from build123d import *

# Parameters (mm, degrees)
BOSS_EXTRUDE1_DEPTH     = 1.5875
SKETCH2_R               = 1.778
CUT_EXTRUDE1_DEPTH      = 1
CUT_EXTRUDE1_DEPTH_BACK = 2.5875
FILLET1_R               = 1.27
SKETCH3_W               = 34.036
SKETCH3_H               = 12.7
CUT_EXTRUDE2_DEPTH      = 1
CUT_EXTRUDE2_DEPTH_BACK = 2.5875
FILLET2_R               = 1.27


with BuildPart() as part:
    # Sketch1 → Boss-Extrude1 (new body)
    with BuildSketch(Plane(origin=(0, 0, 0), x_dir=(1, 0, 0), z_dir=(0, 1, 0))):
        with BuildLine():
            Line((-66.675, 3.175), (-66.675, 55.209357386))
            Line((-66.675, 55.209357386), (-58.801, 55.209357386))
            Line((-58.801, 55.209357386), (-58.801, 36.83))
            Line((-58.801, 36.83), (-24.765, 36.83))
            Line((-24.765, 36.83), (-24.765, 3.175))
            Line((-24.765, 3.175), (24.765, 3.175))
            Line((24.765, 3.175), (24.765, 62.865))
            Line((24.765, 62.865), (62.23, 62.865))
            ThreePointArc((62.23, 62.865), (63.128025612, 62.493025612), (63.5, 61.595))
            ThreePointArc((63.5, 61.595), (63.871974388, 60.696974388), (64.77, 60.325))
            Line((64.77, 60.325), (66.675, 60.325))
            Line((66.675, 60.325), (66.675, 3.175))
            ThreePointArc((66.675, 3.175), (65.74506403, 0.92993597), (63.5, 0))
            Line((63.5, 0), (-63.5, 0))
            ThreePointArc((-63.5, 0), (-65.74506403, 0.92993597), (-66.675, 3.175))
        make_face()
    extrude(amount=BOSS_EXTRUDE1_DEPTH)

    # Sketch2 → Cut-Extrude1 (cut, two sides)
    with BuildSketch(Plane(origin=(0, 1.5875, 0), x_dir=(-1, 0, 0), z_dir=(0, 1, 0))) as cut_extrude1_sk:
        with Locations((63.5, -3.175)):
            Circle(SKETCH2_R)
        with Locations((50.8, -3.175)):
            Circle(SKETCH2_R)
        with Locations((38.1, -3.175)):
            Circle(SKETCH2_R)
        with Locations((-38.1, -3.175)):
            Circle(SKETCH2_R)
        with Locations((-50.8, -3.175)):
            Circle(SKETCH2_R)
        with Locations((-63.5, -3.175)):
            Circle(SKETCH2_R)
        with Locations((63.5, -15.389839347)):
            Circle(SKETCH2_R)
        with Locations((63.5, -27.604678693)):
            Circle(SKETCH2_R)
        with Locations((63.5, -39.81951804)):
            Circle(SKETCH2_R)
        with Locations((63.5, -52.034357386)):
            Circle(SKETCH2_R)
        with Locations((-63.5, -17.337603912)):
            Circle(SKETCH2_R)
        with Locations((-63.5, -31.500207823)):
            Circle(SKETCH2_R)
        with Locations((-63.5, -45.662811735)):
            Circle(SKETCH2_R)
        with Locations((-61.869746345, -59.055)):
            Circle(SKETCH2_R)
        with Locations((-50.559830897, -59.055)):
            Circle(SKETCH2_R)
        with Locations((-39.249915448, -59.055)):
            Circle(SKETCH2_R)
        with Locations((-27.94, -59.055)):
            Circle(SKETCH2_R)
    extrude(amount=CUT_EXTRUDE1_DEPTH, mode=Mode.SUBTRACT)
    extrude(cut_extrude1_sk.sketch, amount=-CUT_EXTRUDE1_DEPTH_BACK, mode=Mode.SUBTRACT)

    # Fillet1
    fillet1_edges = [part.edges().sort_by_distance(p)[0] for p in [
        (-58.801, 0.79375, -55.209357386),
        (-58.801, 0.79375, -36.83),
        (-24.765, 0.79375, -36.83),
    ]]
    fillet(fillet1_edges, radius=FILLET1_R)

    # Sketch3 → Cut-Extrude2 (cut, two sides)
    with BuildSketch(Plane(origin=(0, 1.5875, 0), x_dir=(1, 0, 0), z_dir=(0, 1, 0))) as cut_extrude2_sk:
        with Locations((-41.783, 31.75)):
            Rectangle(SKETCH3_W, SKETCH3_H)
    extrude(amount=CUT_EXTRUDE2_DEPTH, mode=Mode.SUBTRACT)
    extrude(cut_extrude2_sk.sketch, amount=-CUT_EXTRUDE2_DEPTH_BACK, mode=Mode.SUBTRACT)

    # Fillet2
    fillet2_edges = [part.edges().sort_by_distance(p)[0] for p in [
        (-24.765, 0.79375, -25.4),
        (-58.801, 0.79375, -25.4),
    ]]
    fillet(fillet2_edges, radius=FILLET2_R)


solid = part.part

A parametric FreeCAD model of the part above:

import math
import FreeCAD as App
import Part
import Sketcher

V = App.Vector
Q = App.Units.Quantity


def edges_at(feature, points):
    """Names of the edges that pass closest to the given points."""
    edges = feature.Shape.Edges
    near = lambda p: min(range(len(edges)), key=lambda i: edges[i].distToShape(Part.Vertex(*p))[0])
    return sorted({f"Edge{near(p) + 1}" for p in points})


def add_polygon(sketch, points):
    """Adds a closed chain of lines whose ends are joined by coincident constraints."""
    first, n = sketch.GeometryCount, len(points)
    for a, b in zip(points, points[1:] + points[:1]):
        sketch.addGeometry(Part.LineSegment(App.Vector(*a, 0), App.Vector(*b, 0)), False)
    for i in range(n):
        sketch.addConstraint(Sketcher.Constraint("Coincident", first + i, 2, first + (i + 1) % n, 1))

doc = App.newDocument("Part")
body = doc.addObject("PartDesign::Body", "Body")

# Sketch on XZ plane
sketch1 = doc.addObject("Sketcher::SketchObject", "Sketch")
body.addObject(sketch1)
sketch1.AttachmentSupport = (doc.XZ_Plane, [""])
sketch1.MapMode = "FlatFace"
sketch1.addGeometry([
    Part.LineSegment(V(-66.7, -55.2, 0), V(-66.7, -3.2, 0)),  # 0
    Part.ArcOfCircle(Part.Circle(V(-63.5, -3.2, 0), V(0, 0, 1), 3.2), math.radians(90), math.radians(180)),  # 1
    Part.LineSegment(V(-63.5, 0, 0), V(63.5, 0, 0)),  # 2
    Part.ArcOfCircle(Part.Circle(V(63.5, -3.2, 0), V(0, 0, 1), 3.2), math.radians(0), math.radians(90)),  # 3
    Part.LineSegment(V(66.7, -3.2, 0), V(66.7, -60.3, 0)),  # 4
    Part.LineSegment(V(66.7, -60.3, 0), V(64.8, -60.3, 0)),  # 5
    Part.ArcOfCircle(Part.Circle(V(64.8, -61.6, 0), V(0, 0, 1), 1.3), math.radians(90), math.radians(180)),  # 6
    Part.ArcOfCircle(Part.Circle(V(62.2, -61.6, 0), V(0, 0, 1), 1.3), math.radians(-90), math.radians(0)),  # 7
    Part.LineSegment(V(62.2, -62.9, 0), V(24.8, -62.9, 0)),  # 8
    Part.LineSegment(V(24.8, -62.9, 0), V(24.8, -3.2, 0)),  # 9
    Part.LineSegment(V(24.8, -3.2, 0), V(-24.8, -3.2, 0)),  # 10
    Part.LineSegment(V(-24.8, -3.2, 0), V(-24.8, -36.8, 0)),  # 11
    Part.LineSegment(V(-24.8, -36.8, 0), V(-58.8, -36.8, 0)),  # 12
    Part.LineSegment(V(-58.8, -36.8, 0), V(-58.8, -55.2, 0)),  # 13
    Part.LineSegment(V(-58.8, -55.2, 0), V(-66.7, -55.2, 0)),  # 14
], False)
sketch1.addConstraint([
    Sketcher.Constraint("Tangent", 0, 2, 1, 2),
    Sketcher.Constraint("Tangent", 1, 1, 2, 1),
    Sketcher.Constraint("Tangent", 2, 2, 3, 2),
    Sketcher.Constraint("Tangent", 3, 1, 4, 1),
    Sketcher.Constraint("Coincident", 4, 2, 5, 1),
    Sketcher.Constraint("Tangent", 5, 2, 6, 1),
    Sketcher.Constraint("Tangent", 6, 2, 7, 2),
    Sketcher.Constraint("Tangent", 7, 1, 8, 1),
    Sketcher.Constraint("Coincident", 8, 2, 9, 1),
    Sketcher.Constraint("Coincident", 9, 2, 10, 1),
    Sketcher.Constraint("Coincident", 10, 2, 11, 1),
    Sketcher.Constraint("Coincident", 11, 2, 12, 1),
    Sketcher.Constraint("Coincident", 12, 2, 13, 1),
    Sketcher.Constraint("Coincident", 13, 2, 14, 1),
    Sketcher.Constraint("Coincident", 14, 2, 0, 1),
    Sketcher.Constraint("Vertical", 0),
    Sketcher.Constraint("Horizontal", 2),
    Sketcher.Constraint("Vertical", 4),
    Sketcher.Constraint("Horizontal", 5),
    Sketcher.Constraint("Horizontal", 8),
    Sketcher.Constraint("Vertical", 9),
    Sketcher.Constraint("Horizontal", 10),
    Sketcher.Constraint("Vertical", 11),
    Sketcher.Constraint("Horizontal", 12),
    Sketcher.Constraint("Vertical", 13),
    Sketcher.Constraint("Horizontal", 14),
    Sketcher.Constraint("Equal", 1, 3),
    Sketcher.Constraint("Equal", 6, 7),
    Sketcher.Constraint("Symmetric", 1, 1, 2, 2, -1, 1),
    Sketcher.Constraint("Horizontal", 6, 3, 7, 3),
    Sketcher.Constraint("Horizontal", 3, 1, 9, 2),
    Sketcher.Constraint("Vertical", 2, 2, 6, 2),
    Sketcher.Constraint("DistanceX", 2, 1, 2, 2, Q("5 in")),
    Sketcher.Constraint("Radius", 6, Q("0.05 in")),
    Sketcher.Constraint("Radius", 1, Q("0.125 in")),
    Sketcher.Constraint("DistanceX", 10, 2, 10, 1, Q("1.95 in")),
    Sketcher.Constraint("DistanceX", 12, 2, 12, 1, Q("1.34 in")),
    Sketcher.Constraint("DistanceX", 14, 2, 14, 1, Q("0.31 in")),
    Sketcher.Constraint("DistanceY", 4, 2, 4, 1, Q("2.25 in")),
    Sketcher.Constraint("DistanceY", 11, 2, 11, 1, Q("1.325 in")),
    Sketcher.Constraint("DistanceY", 0, 1, 0, 2, Q("52.034357 mm")),
])
pad1 = doc.addObject("PartDesign::Pad", "Pad")
body.addObject(pad1)
pad1.Profile = sketch1
pad1.Length = Q("0.0625 in")
pad1.Reversed = True

# Sketch on XZ plane
sketch2 = doc.addObject("Sketcher::SketchObject", "Sketch001")
body.addObject(sketch2)
sketch2.AttachmentSupport = (doc.XZ_Plane, [""])
sketch2.MapMode = "FlatFace"
sketch2.AttachmentOffset = App.Placement(V(0, 0, -0.0625 * 25.4), App.Rotation())
sketch2.addGeometry([
    Part.Circle(V(-63.5, -3.2, 0), V(0, 0, 1), 1.8),  # 0
    Part.Circle(V(-50.8, -3.2, 0), V(0, 0, 1), 1.8),  # 1
    Part.Circle(V(-38.1, -3.2, 0), V(0, 0, 1), 1.8),  # 2
    Part.Circle(V(38.1, -3.2, 0), V(0, 0, 1), 1.8),  # 3
    Part.Circle(V(50.8, -3.2, 0), V(0, 0, 1), 1.8),  # 4
    Part.Circle(V(63.5, -3.2, 0), V(0, 0, 1), 1.8),  # 5
    Part.Circle(V(-63.5, -15.4, 0), V(0, 0, 1), 1.8),  # 6
    Part.Circle(V(-63.5, -27.6, 0), V(0, 0, 1), 1.8),  # 7
    Part.Circle(V(-63.5, -39.8, 0), V(0, 0, 1), 1.8),  # 8
    Part.Circle(V(-63.5, -52, 0), V(0, 0, 1), 1.8),  # 9
    Part.Circle(V(63.5, -17.3, 0), V(0, 0, 1), 1.8),  # 10
    Part.Circle(V(63.5, -31.5, 0), V(0, 0, 1), 1.8),  # 11
    Part.Circle(V(63.5, -45.7, 0), V(0, 0, 1), 1.8),  # 12
    Part.Circle(V(61.9, -59.1, 0), V(0, 0, 1), 1.8),  # 13
    Part.Circle(V(50.6, -59.1, 0), V(0, 0, 1), 1.8),  # 14
    Part.Circle(V(39.2, -59.1, 0), V(0, 0, 1), 1.8),  # 15
    Part.Circle(V(27.9, -59.1, 0), V(0, 0, 1), 1.8),  # 16
], False)
sketch2.addConstraint([
    Sketcher.Constraint("Equal", 0, 1),
    Sketcher.Constraint("Equal", 1, 2),
    Sketcher.Constraint("Equal", 2, 3),
    Sketcher.Constraint("Equal", 3, 4),
    Sketcher.Constraint("Equal", 4, 5),
    Sketcher.Constraint("Equal", 5, 6),
    Sketcher.Constraint("Equal", 6, 7),
    Sketcher.Constraint("Equal", 7, 8),
    Sketcher.Constraint("Equal", 8, 9),
    Sketcher.Constraint("Equal", 9, 10),
    Sketcher.Constraint("Equal", 10, 11),
    Sketcher.Constraint("Equal", 11, 12),
    Sketcher.Constraint("Equal", 12, 13),
    Sketcher.Constraint("Equal", 13, 14),
    Sketcher.Constraint("Equal", 14, 15),
    Sketcher.Constraint("Equal", 15, 16),
    Sketcher.Constraint("Symmetric", 2, 3, 3, 3, -2),
    Sketcher.Constraint("Symmetric", 1, 3, 4, 3, -2),
    Sketcher.Constraint("Symmetric", 0, 3, 5, 3, -2),
    Sketcher.Constraint("Horizontal", 0, 3, 1, 3),
    Sketcher.Constraint("Horizontal", 1, 3, 2, 3),
    Sketcher.Constraint("Horizontal", 13, 3, 14, 3),
    Sketcher.Constraint("Horizontal", 14, 3, 15, 3),
    Sketcher.Constraint("Horizontal", 15, 3, 16, 3),
    Sketcher.Constraint("Vertical", 0, 3, 6, 3),
    Sketcher.Constraint("Vertical", 6, 3, 7, 3),
    Sketcher.Constraint("Vertical", 7, 3, 8, 3),
    Sketcher.Constraint("Vertical", 8, 3, 9, 3),
    Sketcher.Constraint("Vertical", 5, 3, 10, 3),
    Sketcher.Constraint("Vertical", 10, 3, 11, 3),
    Sketcher.Constraint("Vertical", 11, 3, 12, 3),
    Sketcher.Constraint("Diameter", 0, Q("0.14 in")),
    Sketcher.Constraint("DistanceX", 1, 3, -1, 1, Q("2 in")),
    Sketcher.Constraint("DistanceX", 0, 3, 2, 3, Q("1 in")),
    Sketcher.Constraint("DistanceX", 2, 3, 3, 3, Q("3 in")),
    Sketcher.Constraint("DistanceX", -1, 1, 16, 3, Q("1.1 in")),
    Sketcher.Constraint("DistanceY", 13, 3, 5, 3, Q("2.2 in")),
    Sketcher.Constraint("DistanceY", 0, 3, -1, 1, Q("0.125 in")),
    Sketcher.Constraint("DistanceY", 6, 3, -1, 1, Q("15.389839 mm")),
    Sketcher.Constraint("DistanceY", 7, 3, -1, 1, Q("27.604679 mm")),
    Sketcher.Constraint("DistanceY", 8, 3, -1, 1, Q("39.819518 mm")),
    Sketcher.Constraint("DistanceY", 12, 3, -1, 1, Q("45.662812 mm")),
    Sketcher.Constraint("DistanceX", -1, 1, 14, 3, Q("50.559831 mm")),
    Sketcher.Constraint("DistanceY", 9, 3, 8, 3, Q("12.214839 mm")),
    Sketcher.Constraint("DistanceX", 15, 3, 13, 3, Q("22.619831 mm")),
    Sketcher.Constraint("DistanceY", 10, 3, -1, 1, Q("17.337604 mm")),
    Sketcher.Constraint("DistanceY", 11, 3, -1, 1, Q("31.500208 mm")),
    Sketcher.Constraint("DistanceX", -1, 1, 13, 3, Q("61.869746 mm")),
])
pocket1 = doc.addObject("PartDesign::Pocket", "Pocket")
body.addObject(pocket1)
pocket1.Profile = sketch2
pocket1.Type = "ThroughAll"
pocket1.Midplane = True
doc.recompute()

fillet = doc.addObject("PartDesign::Fillet", "Fillet")
body.addObject(fillet)
fillet.Base = (pocket1, edges_at(pocket1, [(-58.801, 0.794, -55.209), (-58.801, 0.794, -36.83), (-24.765, 0.794, -36.83)]))
fillet.Radius = Q("0.05 in")

# Sketch on XZ plane
sketch3 = doc.addObject("Sketcher::SketchObject", "Sketch002")
body.addObject(sketch3)
sketch3.AttachmentSupport = (doc.XZ_Plane, [""])
sketch3.MapMode = "FlatFace"
sketch3.AttachmentOffset = App.Placement(V(0, 0, -0.0625 * 25.4), App.Rotation())
add_polygon(sketch3, [(-59, -38), (-59, -25), (-25, -25), (-25, -38)])  # lines 0-3
sketch3.addConstraint([
    Sketcher.Constraint("Vertical", 0),
    Sketcher.Constraint("Horizontal", 1),
    Sketcher.Constraint("Vertical", 2),
    Sketcher.Constraint("Horizontal", 3),
    Sketcher.Constraint("DistanceY", 0, 1, 0, 2, Q("0.5 in")),
    Sketcher.Constraint("DistanceY", 0, 2, -1, 1, Q("1 in")),
    Sketcher.Constraint("DistanceX", 1, 1, 1, 2, Q("1.34 in")),
    Sketcher.Constraint("DistanceX", 0, 2, -1, 1, Q("2.315 in")),
])
pocket2 = doc.addObject("PartDesign::Pocket", "Pocket001")
body.addObject(pocket2)
pocket2.Profile = sketch3
pocket2.Type = "ThroughAll"
pocket2.Midplane = True
doc.recompute()

fillet2 = doc.addObject("PartDesign::Fillet", "Fillet001")
body.addObject(fillet2)
fillet2.Base = (pocket2, edges_at(pocket2, [(-24.765, 0.794, -25.4), (-58.801, 0.794, -25.4)]))
fillet2.Radius = Q("0.05 in")

doc.recompute()
